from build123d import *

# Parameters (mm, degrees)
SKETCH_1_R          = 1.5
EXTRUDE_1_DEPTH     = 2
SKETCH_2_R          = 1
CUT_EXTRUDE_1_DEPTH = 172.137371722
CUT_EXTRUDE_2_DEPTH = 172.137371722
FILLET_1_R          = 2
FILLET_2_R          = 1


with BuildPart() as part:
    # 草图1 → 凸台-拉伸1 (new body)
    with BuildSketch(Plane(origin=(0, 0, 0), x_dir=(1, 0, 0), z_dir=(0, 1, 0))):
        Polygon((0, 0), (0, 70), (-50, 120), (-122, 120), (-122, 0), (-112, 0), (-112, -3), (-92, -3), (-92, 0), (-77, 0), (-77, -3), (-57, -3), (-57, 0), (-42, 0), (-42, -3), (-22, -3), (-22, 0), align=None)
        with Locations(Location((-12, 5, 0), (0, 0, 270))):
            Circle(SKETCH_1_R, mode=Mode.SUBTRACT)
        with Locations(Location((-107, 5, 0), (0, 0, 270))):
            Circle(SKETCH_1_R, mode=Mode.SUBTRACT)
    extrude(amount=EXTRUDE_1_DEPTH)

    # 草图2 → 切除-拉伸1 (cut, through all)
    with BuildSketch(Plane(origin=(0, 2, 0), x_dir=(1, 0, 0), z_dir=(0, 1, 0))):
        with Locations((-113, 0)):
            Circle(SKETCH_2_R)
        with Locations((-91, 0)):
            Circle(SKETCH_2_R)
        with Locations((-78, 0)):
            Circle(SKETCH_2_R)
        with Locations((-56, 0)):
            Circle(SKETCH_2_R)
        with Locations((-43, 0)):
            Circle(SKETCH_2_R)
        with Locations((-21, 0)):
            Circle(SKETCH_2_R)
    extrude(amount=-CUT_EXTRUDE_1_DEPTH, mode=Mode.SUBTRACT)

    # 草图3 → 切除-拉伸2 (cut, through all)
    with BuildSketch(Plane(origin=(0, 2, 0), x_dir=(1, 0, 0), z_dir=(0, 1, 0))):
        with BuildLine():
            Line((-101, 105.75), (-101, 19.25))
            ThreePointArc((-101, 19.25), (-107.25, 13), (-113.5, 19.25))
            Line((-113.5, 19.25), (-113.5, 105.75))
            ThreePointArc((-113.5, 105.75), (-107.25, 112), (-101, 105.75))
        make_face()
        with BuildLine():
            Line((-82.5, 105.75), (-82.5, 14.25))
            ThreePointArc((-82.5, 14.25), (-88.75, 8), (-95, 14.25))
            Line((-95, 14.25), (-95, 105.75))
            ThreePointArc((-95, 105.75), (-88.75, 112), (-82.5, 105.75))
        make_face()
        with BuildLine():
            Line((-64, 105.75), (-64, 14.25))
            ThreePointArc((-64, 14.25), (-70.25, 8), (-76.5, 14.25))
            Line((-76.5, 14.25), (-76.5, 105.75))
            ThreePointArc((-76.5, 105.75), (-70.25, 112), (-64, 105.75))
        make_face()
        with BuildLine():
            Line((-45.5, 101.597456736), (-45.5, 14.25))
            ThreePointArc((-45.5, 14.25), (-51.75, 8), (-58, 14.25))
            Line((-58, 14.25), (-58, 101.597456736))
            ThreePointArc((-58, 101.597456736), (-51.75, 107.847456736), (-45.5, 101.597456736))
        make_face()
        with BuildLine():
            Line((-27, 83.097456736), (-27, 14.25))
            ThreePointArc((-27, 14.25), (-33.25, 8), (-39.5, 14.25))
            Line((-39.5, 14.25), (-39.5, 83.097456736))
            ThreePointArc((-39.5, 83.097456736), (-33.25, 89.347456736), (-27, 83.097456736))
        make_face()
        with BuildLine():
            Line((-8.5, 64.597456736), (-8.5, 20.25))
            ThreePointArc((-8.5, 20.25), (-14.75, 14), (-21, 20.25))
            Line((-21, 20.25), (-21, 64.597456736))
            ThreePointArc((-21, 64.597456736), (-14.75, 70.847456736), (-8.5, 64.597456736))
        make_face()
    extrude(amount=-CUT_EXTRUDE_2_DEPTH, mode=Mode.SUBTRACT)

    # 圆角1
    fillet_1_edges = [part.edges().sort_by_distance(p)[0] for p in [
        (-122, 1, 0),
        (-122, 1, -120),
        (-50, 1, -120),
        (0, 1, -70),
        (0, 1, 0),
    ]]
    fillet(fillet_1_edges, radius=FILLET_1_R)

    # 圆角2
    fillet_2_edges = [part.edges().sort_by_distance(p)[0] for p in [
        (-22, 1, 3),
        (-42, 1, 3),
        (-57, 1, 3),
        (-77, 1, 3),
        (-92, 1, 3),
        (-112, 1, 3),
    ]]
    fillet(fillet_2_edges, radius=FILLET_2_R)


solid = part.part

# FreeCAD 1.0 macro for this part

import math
import FreeCAD as App
import Part
import Sketcher


def edges_at(feature, points):
    """Names of the edges that pass closest to the given points."""
    edges = feature.Shape.Edges
    near = lambda p: min(range(len(edges)), key=lambda i: edges[i].distToShape(Part.Vertex(*p))[0])
    return sorted({f"Edge{near(p) + 1}" for p in points})

doc = App.newDocument("Part")
body = doc.addObject("PartDesign::Body", "Body")

sketch1 = body.newObject("Sketcher::SketchObject", "Sketch")
sketch1.AttachmentSupport = (doc.getObject("XZ_Plane"), [""])
sketch1.MapMode = "FlatFace"
sketch1.addGeometry([
    Part.LineSegment(App.Vector(0, 0, 0), App.Vector(0, -70, 0)),
    Part.LineSegment(App.Vector(0, -70, 0), App.Vector(-50, -120, 0)),
    Part.LineSegment(App.Vector(-50, -120, 0), App.Vector(-122, -120, 0)),
    Part.LineSegment(App.Vector(-122, -120, 0), App.Vector(-122, 0, 0)),
    Part.LineSegment(App.Vector(-122, 0, 0), App.Vector(-112, 0, 0)),
    Part.LineSegment(App.Vector(-112, 0, 0), App.Vector(-112, 3, 0)),
    Part.LineSegment(App.Vector(-112, 3, 0), App.Vector(-92, 3, 0)),
    Part.LineSegment(App.Vector(-92, 3, 0), App.Vector(-92, 0, 0)),
    Part.LineSegment(App.Vector(-92, 0, 0), App.Vector(-77, 0, 0)),
    Part.LineSegment(App.Vector(-77, 0, 0), App.Vector(-77, 3, 0)),
    Part.LineSegment(App.Vector(-77, 3, 0), App.Vector(-57, 3, 0)),
    Part.LineSegment(App.Vector(-57, 3, 0), App.Vector(-57, 0, 0)),
    Part.LineSegment(App.Vector(-57, 0, 0), App.Vector(-42, 0, 0)),
    Part.LineSegment(App.Vector(-42, 0, 0), App.Vector(-42, 3, 0)),
    Part.LineSegment(App.Vector(-42, 3, 0), App.Vector(-22, 3, 0)),
    Part.LineSegment(App.Vector(-22, 3, 0), App.Vector(-22, 0, 0)),
    Part.LineSegment(App.Vector(-22, 0, 0), App.Vector(0, 0, 0)),
    Part.Circle(App.Vector(-107, -5, 0), App.Vector(0, 0, 1), 1.5),
    Part.Circle(App.Vector(-12, -5, 0), App.Vector(0, 0, 1), 1.5),
], False)
sketch1.addConstraint([
    Sketcher.Constraint("Coincident", 0, 2, 1, 1),
    Sketcher.Constraint("Coincident", 1, 2, 2, 1),
    Sketcher.Constraint("Coincident", 2, 2, 3, 1),
    Sketcher.Constraint("Coincident", 3, 2, 4, 1),
    Sketcher.Constraint("Coincident", 4, 2, 5, 1),
    Sketcher.Constraint("Coincident", 5, 2, 6, 1),
    Sketcher.Constraint("Coincident", 6, 2, 7, 1),
    Sketcher.Constraint("Coincident", 7, 2, 8, 1),
    Sketcher.Constraint("Coincident", 8, 2, 9, 1),
    Sketcher.Constraint("Coincident", 9, 2, 10, 1),
    Sketcher.Constraint("Coincident", 10, 2, 11, 1),
    Sketcher.Constraint("Coincident", 11, 2, 12, 1),
    Sketcher.Constraint("Coincident", 12, 2, 13, 1),
    Sketcher.Constraint("Coincident", 13, 2, 14, 1),
    Sketcher.Constraint("Coincident", 14, 2, 15, 1),
    Sketcher.Constraint("Coincident", 15, 2, 16, 1),
    Sketcher.Constraint("Coincident", 16, 2, 0, 1),
    Sketcher.Constraint("Vertical", 0),
    Sketcher.Constraint("Horizontal", 2),
    Sketcher.Constraint("Vertical", 3),
    Sketcher.Constraint("Horizontal", 4),
    Sketcher.Constraint("Vertical", 5),
    Sketcher.Constraint("Horizontal", 6),
    Sketcher.Constraint("Vertical", 7),
    Sketcher.Constraint("Horizontal", 8),
    Sketcher.Constraint("Vertical", 9),
    Sketcher.Constraint("Horizontal", 10),
    Sketcher.Constraint("Vertical", 11),
    Sketcher.Constraint("Horizontal", 12),
    Sketcher.Constraint("Vertical", 13),
    Sketcher.Constraint("Horizontal", 14),
    Sketcher.Constraint("Vertical", 15),
    Sketcher.Constraint("Horizontal", 16),
    Sketcher.Constraint("Coincident", 16, 2, -1, 1),
    Sketcher.Constraint("Equal", 17, 18),
    Sketcher.Constraint("PointOnObject", 3, 2, -1),
    Sketcher.Constraint("PointOnObject", 7, 2, -1),
    Sketcher.Constraint("PointOnObject", 11, 2, -1),
    Sketcher.Constraint("Horizontal", 17, 3, 18, 3),
    Sketcher.Constraint("Horizontal", 6, 2, 9, 2),
    Sketcher.Constraint("Horizontal", 10, 2, 13, 2),
    Sketcher.Constraint("Equal", 6, 10),
    Sketcher.Constraint("Equal", 8, 12),
    Sketcher.Constraint("Equal", 10, 14),
    Sketcher.Constraint("Diameter", 17, 3.0),
    Sketcher.Constraint("DistanceX", 2, 2, 2, 1, 72.0),
    Sketcher.Constraint("DistanceX", 4, 1, 4, 2, 10.0),
    Sketcher.Constraint("DistanceX", 6, 1, 6, 2, 20.0),
    Sketcher.Constraint("DistanceX", 8, 1, 8, 2, 15.0),
    Sketcher.Constraint("DistanceX", 16, 1, 16, 2, 22.0),
    Sketcher.Constraint("DistanceY", 0, 2, 0, 1, 70.0),
    Sketcher.Constraint("DistanceY", 3, 1, 3, 2, 120.0),
    Sketcher.Constraint("DistanceY", 5, 1, 5, 2, 3.0),
    Sketcher.Constraint("DistanceX", 17, 3, -1, 1, 107.0),
    Sketcher.Constraint("DistanceY", 17, 3, -1, 1, 5.0),
    Sketcher.Constraint("DistanceX", 18, 3, -1, 1, 12.0),
])
pad1 = body.newObject("PartDesign::Pad", "Pad")
pad1.Profile = sketch1
pad1.Length = 2
pad1.Reversed = True

sketch2 = body.newObject("Sketcher::SketchObject", "Sketch001")
sketch2.AttachmentSupport = (doc.getObject("XZ_Plane"), [""])
sketch2.MapMode = "FlatFace"
sketch2.AttachmentOffset = App.Placement(App.Vector(0, 0, -2), App.Rotation())
sketch2.addGeometry([
    Part.Circle(App.Vector(-113, 0, 0), App.Vector(0, 0, 1), 1),
    Part.Circle(App.Vector(-91, 0, 0), App.Vector(0, 0, 1), 1),
    Part.Circle(App.Vector(-78, 0, 0), App.Vector(0, 0, 1), 1),
    Part.Circle(App.Vector(-56, 0, 0), App.Vector(0, 0, 1), 1),
    Part.Circle(App.Vector(-43, 0, 0), App.Vector(0, 0, 1), 1),
    Part.Circle(App.Vector(-21, 0, 0), App.Vector(0, 0, 1), 1),
], False)
sketch2.addConstraint([
    Sketcher.Constraint("Equal", 0, 1),
    Sketcher.Constraint("Equal", 1, 2),
    Sketcher.Constraint("Equal", 2, 3),
    Sketcher.Constraint("Equal", 3, 4),
    Sketcher.Constraint("Equal", 4, 5),
    Sketcher.Constraint("PointOnObject", 0, 3, -1),
    Sketcher.Constraint("PointOnObject", 1, 3, -1),
    Sketcher.Constraint("PointOnObject", 2, 3, -1),
    Sketcher.Constraint("PointOnObject", 3, 3, -1),
    Sketcher.Constraint("PointOnObject", 4, 3, -1),
    Sketcher.Constraint("PointOnObject", 5, 3, -1),
    Sketcher.Constraint("Diameter", 0, 2.0),
    Sketcher.Constraint("DistanceX", 0, 3, -1, 1, 113.0),
    Sketcher.Constraint("DistanceX", 1, 3, -1, 1, 91.0),
    Sketcher.Constraint("DistanceX", 2, 3, -1, 1, 78.0),
    Sketcher.Constraint("DistanceX", 3, 3, -1, 1, 56.0),
    Sketcher.Constraint("DistanceX", 4, 3, -1, 1, 43.0),
    Sketcher.Constraint("DistanceX", 5, 3, -1, 1, 21.0),
])
pocket1 = body.newObject("PartDesign::Pocket", "Pocket")
pocket1.Profile = sketch2
pocket1.Type = "ThroughAll"
pocket1.Reversed = True

sketch3 = body.newObject("Sketcher::SketchObject", "Sketch002")
sketch3.AttachmentSupport = (doc.getObject("XZ_Plane"), [""])
sketch3.MapMode = "FlatFace"
sketch3.AttachmentOffset = App.Placement(App.Vector(0, 0, -2), App.Rotation())
sketch3.addGeometry([
    Part.LineSegment(App.Vector(-101, -19, 0), App.Vector(-101, -106, 0)),
    Part.ArcOfCircle(Part.Circle(App.Vector(-107, -106, 0), App.Vector(0, 0, 1), 6), math.radians(180), math.radians(360)),
    Part.LineSegment(App.Vector(-114, -106, 0), App.Vector(-114, -19, 0)),
    Part.ArcOfCircle(Part.Circle(App.Vector(-107, -19, 0), App.Vector(0, 0, 1), 6), math.radians(0), math.radians(180)),
    Part.LineSegment(App.Vector(-82, -14, 0), App.Vector(-82, -106, 0)),
    Part.ArcOfCircle(Part.Circle(App.Vector(-89, -106, 0), App.Vector(0, 0, 1), 6), math.radians(180), math.radians(360)),
    Part.LineSegment(App.Vector(-95, -106, 0), App.Vector(-95, -14, 0)),
    Part.ArcOfCircle(Part.Circle(App.Vector(-89, -14, 0), App.Vector(0, 0, 1), 6), math.radians(0), math.radians(180)),
    Part.LineSegment(App.Vector(-64, -14, 0), App.Vector(-64, -106, 0)),
    Part.ArcOfCircle(Part.Circle(App.Vector(-70, -106, 0), App.Vector(0, 0, 1), 6), math.radians(180), math.radians(360)),
    Part.LineSegment(App.Vector(-76, -106, 0), App.Vector(-76, -14, 0)),
    Part.ArcOfCircle(Part.Circle(App.Vector(-70, -14, 0), App.Vector(0, 0, 1), 6), math.radians(0), math.radians(180)),
    Part.LineSegment(App.Vector(-46, -14, 0), App.Vector(-46, -102, 0)),
    Part.ArcOfCircle(Part.Circle(App.Vector(-52, -102, 0), App.Vector(0, 0, 1), 6), math.radians(180), math.radians(360)),
    Part.LineSegment(App.Vector(-58, -102, 0), App.Vector(-58, -14, 0)),
    Part.ArcOfCircle(Part.Circle(App.Vector(-52, -14, 0), App.Vector(0, 0, 1), 6), math.radians(0), math.radians(180)),
    Part.LineSegment(App.Vector(-27, -14, 0), App.Vector(-27, -83, 0)),
    Part.ArcOfCircle(Part.Circle(App.Vector(-33, -83, 0), App.Vector(0, 0, 1), 6), math.radians(180), math.radians(360)),
    Part.LineSegment(App.Vector(-40, -83, 0), App.Vector(-40, -14, 0)),
    Part.ArcOfCircle(Part.Circle(App.Vector(-33, -14, 0), App.Vector(0, 0, 1), 6), math.radians(0), math.radians(180)),
    Part.LineSegment(App.Vector(-8, -20, 0), App.Vector(-8, -65, 0)),
    Part.ArcOfCircle(Part.Circle(App.Vector(-15, -65, 0), App.Vector(0, 0, 1), 6), math.radians(180), math.radians(360)),
    Part.LineSegment(App.Vector(-21, -65, 0), App.Vector(-21, -20, 0)),
    Part.ArcOfCircle(Part.Circle(App.Vector(-15, -20, 0), App.Vector(0, 0, 1), 6), math.radians(0), math.radians(180)),
], False)
sketch3.addConstraint([
    Sketcher.Constraint("Tangent", 0, 2, 1, 2),
    Sketcher.Constraint("Tangent", 1, 1, 2, 1),
    Sketcher.Constraint("Tangent", 2, 2, 3, 2),
    Sketcher.Constraint("Tangent", 3, 1, 0, 1),
    Sketcher.Constraint("Tangent", 4, 2, 5, 2),
    Sketcher.Constraint("Tangent", 5, 1, 6, 1),
    Sketcher.Constraint("Tangent", 6, 2, 7, 2),
    Sketcher.Constraint("Tangent", 7, 1, 4, 1),
    Sketcher.Constraint("Tangent", 8, 2, 9, 2),
    Sketcher.Constraint("Tangent", 9, 1, 10, 1),
    Sketcher.Constraint("Tangent", 10, 2, 11, 2),
    Sketcher.Constraint("Tangent", 11, 1, 8, 1),
    Sketcher.Constraint("Tangent", 12, 2, 13, 2),
    Sketcher.Constraint("Tangent", 13, 1, 14, 1),
    Sketcher.Constraint("Tangent", 14, 2, 15, 2),
    Sketcher.Constraint("Tangent", 15, 1, 12, 1),
    Sketcher.Constraint("Tangent", 16, 2, 17, 2),
    Sketcher.Constraint("Tangent", 17, 1, 18, 1),
    Sketcher.Constraint("Tangent", 18, 2, 19, 2),
    Sketcher.Constraint("Tangent", 19, 1, 16, 1),
    Sketcher.Constraint("Tangent", 20, 2, 21, 2),
    Sketcher.Constraint("Tangent", 21, 1, 22, 1),
    Sketcher.Constraint("Tangent", 22, 2, 23, 2),
    Sketcher.Constraint("Tangent", 23, 1, 20, 1),
    Sketcher.Constraint("Vertical", 0),
    Sketcher.Constraint("Vertical", 2),
    Sketcher.Constraint("Vertical", 4),
    Sketcher.Constraint("Vertical", 6),
    Sketcher.Constraint("Vertical", 8),
    Sketcher.Constraint("Vertical", 10),
    Sketcher.Constraint("Vertical", 12),
    Sketcher.Constraint("Vertical", 14),
    Sketcher.Constraint("Vertical", 16),
    Sketcher.Constraint("Vertical", 18),
    Sketcher.Constraint("Vertical", 20),
    Sketcher.Constraint("Vertical", 22),
    Sketcher.Constraint("Equal", 3, 5),
    Sketcher.Constraint("Equal", 7, 9),
    Sketcher.Constraint("Equal", 11, 13),
    Sketcher.Constraint("Equal", 15, 17),
    Sketcher.Constraint("Equal", 19, 21),
    Sketcher.Constraint("Horizontal", 1, 3, 5, 3),
    Sketcher.Constraint("Horizontal", 5, 3, 9, 3),
    Sketcher.Constraint("Horizontal", 7, 3, 11, 3),
    Sketcher.Constraint("Horizontal", 11, 3, 15, 3),
    Sketcher.Constraint("Horizontal", 15, 3, 19, 3),
    Sketcher.Constraint("Radius", 1, 6.25),
    Sketcher.Constraint("DistanceY", 0, 2, 0, 1, 86.5),
    Sketcher.Constraint("DistanceY", 4, 2, 4, 1, 91.5),
    Sketcher.Constraint("DistanceX", 0, 2, -1, 1, 101.0),
    Sketcher.Constraint("DistanceX", 5, 1, -1, 1, 95.0),
    Sketcher.Constraint("DistanceX", 8, 2, -1, 1, 64.0),
    Sketcher.Constraint("DistanceX", 13, 1, -1, 1, 58.0),
    Sketcher.Constraint("DistanceX", 16, 2, -1, 1, 27.0),
    Sketcher.Constraint("DistanceX", 21, 1, -1, 1, 21.0),
    Sketcher.Constraint("DistanceY", 13, 3, 21, 3, 37.0),
    Sketcher.Constraint("DistanceY", 23, 3, 19, 3, 6.0),
    Sketcher.Constraint("DistanceY", 13, 3, 17, 3, 18.5),
    Sketcher.Constraint("DistanceY", 1, 3, -1, 1, 105.75),
    Sketcher.Constraint("DistanceY", 12, 2, 12, 1, 87.347457),
])
pocket2 = body.newObject("PartDesign::Pocket", "Pocket001")
pocket2.Profile = sketch3
pocket2.Type = "ThroughAll"
pocket2.Reversed = True
doc.recompute()

fillet = body.newObject("PartDesign::Fillet", "Fillet")
fillet.Base = (pocket2, edges_at(pocket2, [
    (-122, 1, 0),
    (-122, 1, -120),
    (-50, 1, -120),
    (0, 1, -70),
    (0, 1, 0),
]))
fillet.Radius = 2
doc.recompute()

fillet2 = body.newObject("PartDesign::Fillet", "Fillet001")
fillet2.Base = (fillet, edges_at(fillet, [
    (-22, 1, 3),
    (-42, 1, 3),
    (-57, 1, 3),
    (-77, 1, 3),
    (-92, 1, 3),
    (-112, 1, 3),
]))
fillet2.Radius = 1

doc.recompute()
